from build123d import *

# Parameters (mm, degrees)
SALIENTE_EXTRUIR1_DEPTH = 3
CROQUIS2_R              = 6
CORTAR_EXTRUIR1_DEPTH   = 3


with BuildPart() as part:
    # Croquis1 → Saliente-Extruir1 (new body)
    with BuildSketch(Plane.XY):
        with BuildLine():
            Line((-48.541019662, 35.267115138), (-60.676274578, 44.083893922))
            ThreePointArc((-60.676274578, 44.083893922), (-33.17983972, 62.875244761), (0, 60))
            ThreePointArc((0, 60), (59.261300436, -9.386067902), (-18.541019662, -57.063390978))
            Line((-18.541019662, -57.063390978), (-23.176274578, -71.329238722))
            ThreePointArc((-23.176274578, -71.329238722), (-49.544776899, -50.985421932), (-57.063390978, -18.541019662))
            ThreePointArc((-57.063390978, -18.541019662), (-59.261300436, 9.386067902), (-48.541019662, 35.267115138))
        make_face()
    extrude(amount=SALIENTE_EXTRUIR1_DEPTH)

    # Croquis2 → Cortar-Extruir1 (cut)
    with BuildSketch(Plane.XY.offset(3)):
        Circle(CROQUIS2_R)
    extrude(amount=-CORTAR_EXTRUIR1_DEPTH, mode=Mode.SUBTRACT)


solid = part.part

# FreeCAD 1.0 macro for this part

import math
import FreeCAD as App
import Part
import Sketcher

V = App.Vector
Q = App.Units.Quantity

doc = App.newDocument("Part")
body = doc.addObject("PartDesign::Body", "Body")

sketch1 = body.newObject("Sketcher::SketchObject", "Sketch")
sketch1.AttachmentSupport = (doc.getObject("XY_Plane"), [""])
sketch1.MapMode = "FlatFace"
sketch1.addGeometry([
    Part.LineSegment(V(-61, 44, 0), V(-49, 35, 0)),
    Part.ArcOfCircle(Part.Circle(V(0, 0, 0), V(0, 0, 1), 60), math.radians(144), math.radians(198)),
    Part.ArcOfCircle(Part.Circle(V(-8, -24, 0), V(0, 0, 1), 50), math.radians(173), math.radians(252)),
    Part.LineSegment(V(-23, -71, 0), V(-19, -57, 0)),
    Part.ArcOfCircle(Part.Circle(V(0, 0, 0), V(0, 0, 1), 60), math.radians(-108), math.radians(90)),
    Part.ArcOfCircle(Part.Circle(V(-21, 15, 0), V(0, 0, 1), 50), math.radians(65), math.radians(144)),
], False)
sketch1.addConstraint([
    Sketcher.Constraint("Coincident", 0, 2, 1, 1),
    Sketcher.Constraint("Coincident", 1, 2, 2, 1),
    Sketcher.Constraint("Coincident", 2, 2, 3, 1),
    Sketcher.Constraint("Coincident", 3, 2, 4, 1),
    Sketcher.Constraint("Coincident", 4, 2, 5, 1),
    Sketcher.Constraint("Coincident", 5, 2, 0, 1),
    Sketcher.Constraint("Coincident", 1, 3, -1, 1),
    Sketcher.Constraint("Coincident", 4, 3, -1, 1),
    Sketcher.Constraint("Equal", 1, 4),
    Sketcher.Constraint("Equal", 2, 5),
    Sketcher.Constraint("PointOnObject", 4, 2, -2),
    Sketcher.Constraint("Equal", 0, 3),
    Sketcher.Constraint("Radius", 1, Q("60 mm")),
    Sketcher.Constraint("Angle", 0, Q("-36 deg")),
    Sketcher.Constraint("Angle", 3, Q("72 deg")),
    Sketcher.Constraint("Distance", 0, Q("15 mm")),
    Sketcher.Constraint("Radius", 2, Q("49.51733 mm")),
    Sketcher.Constraint("DistanceX", 2, 3, -1, 1, Q("7.874578 mm")),
    Sketcher.Constraint("DistanceX", 0, 2, -1, 1, Q("48.54102 mm")),
    Sketcher.Constraint("DistanceY", 2, 2, -1, 1, Q("71.329239 mm")),
])
pad1 = body.newObject("PartDesign::Pad", "Pad")
pad1.Profile = sketch1
pad1.Length = 3

sketch2 = body.newObject("Sketcher::SketchObject", "Sketch001")
sketch2.AttachmentSupport = (doc.getObject("XY_Plane"), [""])
sketch2.MapMode = "FlatFace"
sketch2.AttachmentOffset = App.Placement(V(0, 0, 3), App.Rotation())
sketch2.addGeometry(Part.Circle(V(0, 0, 0), V(0, 0, 1), 6), False)
sketch2.addConstraint([
    Sketcher.Constraint("Coincident", 0, 3, -1, 1),
    Sketcher.Constraint("Diameter", 0, Q("12 mm")),
])
pocket1 = body.newObject("PartDesign::Pocket", "Pocket")
pocket1.Profile = sketch2
pocket1.Length = 3

doc.recompute()
